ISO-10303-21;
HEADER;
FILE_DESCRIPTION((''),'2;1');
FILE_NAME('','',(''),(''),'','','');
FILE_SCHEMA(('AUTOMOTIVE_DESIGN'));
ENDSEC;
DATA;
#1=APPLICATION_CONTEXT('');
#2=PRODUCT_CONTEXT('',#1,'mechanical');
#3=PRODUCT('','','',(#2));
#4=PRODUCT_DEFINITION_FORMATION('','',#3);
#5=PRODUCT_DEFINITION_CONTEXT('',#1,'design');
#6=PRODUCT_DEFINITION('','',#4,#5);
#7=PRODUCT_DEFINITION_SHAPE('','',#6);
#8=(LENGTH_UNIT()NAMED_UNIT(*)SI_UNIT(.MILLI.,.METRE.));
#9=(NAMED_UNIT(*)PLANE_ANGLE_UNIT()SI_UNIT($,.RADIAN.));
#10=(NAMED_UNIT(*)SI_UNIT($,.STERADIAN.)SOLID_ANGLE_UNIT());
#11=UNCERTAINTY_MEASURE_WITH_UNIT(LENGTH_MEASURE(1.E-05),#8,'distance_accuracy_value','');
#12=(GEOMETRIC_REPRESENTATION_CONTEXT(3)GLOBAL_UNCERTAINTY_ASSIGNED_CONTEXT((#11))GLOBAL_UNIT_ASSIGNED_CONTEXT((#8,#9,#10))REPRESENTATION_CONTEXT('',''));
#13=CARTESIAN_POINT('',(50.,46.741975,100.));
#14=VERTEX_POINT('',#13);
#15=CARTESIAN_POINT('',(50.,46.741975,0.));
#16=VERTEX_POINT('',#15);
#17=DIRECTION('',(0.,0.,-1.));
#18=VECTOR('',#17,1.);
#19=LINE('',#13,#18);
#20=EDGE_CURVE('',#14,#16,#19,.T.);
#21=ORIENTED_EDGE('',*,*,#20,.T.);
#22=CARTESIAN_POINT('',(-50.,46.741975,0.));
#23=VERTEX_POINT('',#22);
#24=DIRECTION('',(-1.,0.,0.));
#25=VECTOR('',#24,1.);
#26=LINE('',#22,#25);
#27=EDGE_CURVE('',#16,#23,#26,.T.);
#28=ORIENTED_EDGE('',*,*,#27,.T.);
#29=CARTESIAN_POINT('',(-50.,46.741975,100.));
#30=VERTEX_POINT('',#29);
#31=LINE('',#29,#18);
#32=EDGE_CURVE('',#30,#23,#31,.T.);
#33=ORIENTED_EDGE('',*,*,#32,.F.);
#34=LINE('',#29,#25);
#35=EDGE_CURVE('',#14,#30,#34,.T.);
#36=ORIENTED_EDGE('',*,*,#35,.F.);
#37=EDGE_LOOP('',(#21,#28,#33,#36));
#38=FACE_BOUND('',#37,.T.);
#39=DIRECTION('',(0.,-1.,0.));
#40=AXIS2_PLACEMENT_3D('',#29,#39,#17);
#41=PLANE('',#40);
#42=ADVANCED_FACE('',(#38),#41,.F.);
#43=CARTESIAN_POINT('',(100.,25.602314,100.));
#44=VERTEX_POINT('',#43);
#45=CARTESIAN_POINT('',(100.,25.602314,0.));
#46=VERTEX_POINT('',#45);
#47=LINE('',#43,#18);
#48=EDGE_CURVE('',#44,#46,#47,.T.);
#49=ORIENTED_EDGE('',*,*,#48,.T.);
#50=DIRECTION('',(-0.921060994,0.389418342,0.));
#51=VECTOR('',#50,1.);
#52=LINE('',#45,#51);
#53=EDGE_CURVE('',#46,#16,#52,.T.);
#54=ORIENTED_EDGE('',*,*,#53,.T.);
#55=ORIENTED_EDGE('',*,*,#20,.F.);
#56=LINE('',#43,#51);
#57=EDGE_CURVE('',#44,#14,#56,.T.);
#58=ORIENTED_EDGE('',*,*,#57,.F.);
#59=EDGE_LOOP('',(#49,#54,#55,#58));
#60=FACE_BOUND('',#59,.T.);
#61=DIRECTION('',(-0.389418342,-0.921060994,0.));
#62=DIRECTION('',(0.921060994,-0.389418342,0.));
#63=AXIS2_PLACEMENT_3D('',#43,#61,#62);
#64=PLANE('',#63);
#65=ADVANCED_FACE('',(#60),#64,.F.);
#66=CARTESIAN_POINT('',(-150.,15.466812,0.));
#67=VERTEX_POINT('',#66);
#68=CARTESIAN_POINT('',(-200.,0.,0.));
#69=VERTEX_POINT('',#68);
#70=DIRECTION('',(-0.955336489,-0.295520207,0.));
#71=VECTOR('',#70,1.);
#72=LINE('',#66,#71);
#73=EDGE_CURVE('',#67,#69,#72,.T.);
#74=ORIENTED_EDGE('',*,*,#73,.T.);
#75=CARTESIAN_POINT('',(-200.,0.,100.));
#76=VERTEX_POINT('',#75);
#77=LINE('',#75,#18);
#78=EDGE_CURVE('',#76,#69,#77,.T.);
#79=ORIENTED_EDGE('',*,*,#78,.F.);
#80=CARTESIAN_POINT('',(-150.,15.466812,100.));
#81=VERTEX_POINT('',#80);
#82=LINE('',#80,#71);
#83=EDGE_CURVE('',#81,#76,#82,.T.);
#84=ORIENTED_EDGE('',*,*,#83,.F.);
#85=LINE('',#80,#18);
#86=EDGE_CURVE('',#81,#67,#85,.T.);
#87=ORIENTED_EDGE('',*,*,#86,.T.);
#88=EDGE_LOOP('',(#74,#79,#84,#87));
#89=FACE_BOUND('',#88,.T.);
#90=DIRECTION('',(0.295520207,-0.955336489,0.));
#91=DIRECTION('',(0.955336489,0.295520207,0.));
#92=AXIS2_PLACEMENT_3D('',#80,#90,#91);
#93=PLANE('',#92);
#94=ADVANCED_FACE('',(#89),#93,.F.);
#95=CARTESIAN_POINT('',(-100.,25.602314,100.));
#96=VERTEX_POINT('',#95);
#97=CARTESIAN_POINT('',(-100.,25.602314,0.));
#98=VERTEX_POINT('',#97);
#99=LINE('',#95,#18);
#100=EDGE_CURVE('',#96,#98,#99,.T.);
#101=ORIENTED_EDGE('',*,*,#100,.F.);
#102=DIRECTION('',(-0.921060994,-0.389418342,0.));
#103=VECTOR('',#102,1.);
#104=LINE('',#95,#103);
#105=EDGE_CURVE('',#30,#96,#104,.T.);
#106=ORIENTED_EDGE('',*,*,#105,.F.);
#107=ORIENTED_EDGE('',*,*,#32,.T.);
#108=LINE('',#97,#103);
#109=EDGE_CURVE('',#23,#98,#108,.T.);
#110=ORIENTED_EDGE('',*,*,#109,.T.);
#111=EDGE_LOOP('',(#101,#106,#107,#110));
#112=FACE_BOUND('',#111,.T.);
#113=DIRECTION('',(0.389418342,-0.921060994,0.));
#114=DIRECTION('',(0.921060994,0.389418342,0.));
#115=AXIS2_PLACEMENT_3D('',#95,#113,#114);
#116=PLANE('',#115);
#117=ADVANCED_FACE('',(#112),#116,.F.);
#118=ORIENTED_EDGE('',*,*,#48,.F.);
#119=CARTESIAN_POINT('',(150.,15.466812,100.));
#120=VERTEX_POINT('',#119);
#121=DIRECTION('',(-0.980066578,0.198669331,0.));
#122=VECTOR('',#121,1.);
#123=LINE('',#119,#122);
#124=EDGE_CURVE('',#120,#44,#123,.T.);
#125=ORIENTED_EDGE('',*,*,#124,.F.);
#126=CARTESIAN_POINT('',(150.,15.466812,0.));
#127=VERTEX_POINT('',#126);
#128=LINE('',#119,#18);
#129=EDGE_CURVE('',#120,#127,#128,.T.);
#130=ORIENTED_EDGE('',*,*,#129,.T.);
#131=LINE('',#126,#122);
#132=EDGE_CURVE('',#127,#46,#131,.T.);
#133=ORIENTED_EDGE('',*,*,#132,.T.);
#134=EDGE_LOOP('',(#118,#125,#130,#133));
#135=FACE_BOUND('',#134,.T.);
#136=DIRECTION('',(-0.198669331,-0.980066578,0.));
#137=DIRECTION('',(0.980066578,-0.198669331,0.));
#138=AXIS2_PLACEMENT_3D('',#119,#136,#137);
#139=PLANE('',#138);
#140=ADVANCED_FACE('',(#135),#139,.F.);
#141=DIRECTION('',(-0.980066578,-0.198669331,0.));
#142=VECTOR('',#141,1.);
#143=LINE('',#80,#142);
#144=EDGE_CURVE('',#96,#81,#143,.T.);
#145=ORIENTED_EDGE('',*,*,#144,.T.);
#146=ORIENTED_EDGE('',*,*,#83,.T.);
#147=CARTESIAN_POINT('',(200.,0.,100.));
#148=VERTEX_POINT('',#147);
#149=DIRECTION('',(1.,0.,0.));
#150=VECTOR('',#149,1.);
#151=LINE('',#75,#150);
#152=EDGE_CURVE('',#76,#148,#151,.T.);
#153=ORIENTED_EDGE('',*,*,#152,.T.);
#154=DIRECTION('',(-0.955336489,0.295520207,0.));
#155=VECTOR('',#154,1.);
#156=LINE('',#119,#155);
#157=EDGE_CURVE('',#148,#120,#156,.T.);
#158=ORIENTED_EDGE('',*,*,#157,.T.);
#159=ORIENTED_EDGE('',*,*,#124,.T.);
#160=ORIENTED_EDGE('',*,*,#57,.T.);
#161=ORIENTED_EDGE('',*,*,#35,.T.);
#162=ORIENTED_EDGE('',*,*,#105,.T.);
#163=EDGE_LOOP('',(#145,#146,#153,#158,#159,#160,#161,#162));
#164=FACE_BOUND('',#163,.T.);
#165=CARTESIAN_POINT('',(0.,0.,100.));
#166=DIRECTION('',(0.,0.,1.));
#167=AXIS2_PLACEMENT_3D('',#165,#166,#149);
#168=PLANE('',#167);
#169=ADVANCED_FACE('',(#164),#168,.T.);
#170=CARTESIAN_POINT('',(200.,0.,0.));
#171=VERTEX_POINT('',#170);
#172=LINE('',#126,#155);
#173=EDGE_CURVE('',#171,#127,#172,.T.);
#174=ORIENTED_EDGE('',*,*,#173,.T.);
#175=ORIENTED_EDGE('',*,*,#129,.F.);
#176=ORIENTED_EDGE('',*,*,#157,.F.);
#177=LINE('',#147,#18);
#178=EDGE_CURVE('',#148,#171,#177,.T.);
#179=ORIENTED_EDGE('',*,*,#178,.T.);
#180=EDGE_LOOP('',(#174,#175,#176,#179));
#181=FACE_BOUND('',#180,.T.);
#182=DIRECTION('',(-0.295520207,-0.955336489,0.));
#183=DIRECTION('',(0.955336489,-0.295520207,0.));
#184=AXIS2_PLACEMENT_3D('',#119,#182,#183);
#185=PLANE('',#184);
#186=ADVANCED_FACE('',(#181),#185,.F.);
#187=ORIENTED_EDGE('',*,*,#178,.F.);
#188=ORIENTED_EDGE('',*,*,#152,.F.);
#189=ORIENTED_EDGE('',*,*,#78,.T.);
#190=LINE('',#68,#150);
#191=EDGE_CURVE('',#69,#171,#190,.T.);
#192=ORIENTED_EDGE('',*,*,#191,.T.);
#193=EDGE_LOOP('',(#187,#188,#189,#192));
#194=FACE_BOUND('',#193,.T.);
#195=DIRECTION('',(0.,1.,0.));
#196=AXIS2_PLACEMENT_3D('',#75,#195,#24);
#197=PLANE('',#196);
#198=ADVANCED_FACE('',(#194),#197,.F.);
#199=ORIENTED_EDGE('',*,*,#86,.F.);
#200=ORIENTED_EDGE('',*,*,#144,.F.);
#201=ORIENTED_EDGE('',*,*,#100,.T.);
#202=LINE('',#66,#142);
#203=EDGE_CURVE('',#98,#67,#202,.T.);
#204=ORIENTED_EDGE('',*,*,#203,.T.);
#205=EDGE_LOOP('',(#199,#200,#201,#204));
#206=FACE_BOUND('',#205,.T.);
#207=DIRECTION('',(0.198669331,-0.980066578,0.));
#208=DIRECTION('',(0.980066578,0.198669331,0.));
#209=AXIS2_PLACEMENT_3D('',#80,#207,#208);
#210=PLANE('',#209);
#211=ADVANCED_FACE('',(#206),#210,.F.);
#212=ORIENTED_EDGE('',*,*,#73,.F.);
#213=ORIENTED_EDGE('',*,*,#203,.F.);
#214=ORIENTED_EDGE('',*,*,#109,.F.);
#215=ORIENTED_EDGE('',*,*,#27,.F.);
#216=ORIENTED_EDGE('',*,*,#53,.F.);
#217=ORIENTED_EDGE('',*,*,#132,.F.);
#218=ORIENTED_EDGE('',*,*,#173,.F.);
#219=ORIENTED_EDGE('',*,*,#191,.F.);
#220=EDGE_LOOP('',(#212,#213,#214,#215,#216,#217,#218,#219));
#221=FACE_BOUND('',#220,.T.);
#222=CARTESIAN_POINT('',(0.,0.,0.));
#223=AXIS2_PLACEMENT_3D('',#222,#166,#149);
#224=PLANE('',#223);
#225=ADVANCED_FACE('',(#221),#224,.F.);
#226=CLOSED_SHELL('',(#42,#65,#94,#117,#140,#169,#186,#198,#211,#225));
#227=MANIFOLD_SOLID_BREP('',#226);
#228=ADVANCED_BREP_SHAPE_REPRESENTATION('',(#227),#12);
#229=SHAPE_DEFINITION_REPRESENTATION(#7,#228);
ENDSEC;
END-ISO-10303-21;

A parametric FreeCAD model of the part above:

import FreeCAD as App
import Part
import Sketcher

V = App.Vector


def add_polygon(sketch, points):
    """Adds a closed chain of lines whose ends are joined by coincident constraints."""
    first, n = sketch.GeometryCount, len(points)
    for a, b in zip(points, points[1:] + points[:1]):
        sketch.addGeometry(Part.LineSegment(App.Vector(*a, 0), App.Vector(*b, 0)), False)
    for i in range(n):
        sketch.addConstraint(Sketcher.Constraint("Coincident", first + i, 2, first + (i + 1) % n, 1))

doc = App.newDocument("Part")
body = doc.addObject("PartDesign::Body", "Body")

# Sketch on XY plane
sketch1 = body.newObject("Sketcher::SketchObject", "Sketch")
sketch1.AttachmentSupport = (doc.getObject("XY_Plane"), [""])
sketch1.MapMode = "FlatFace"
add_polygon(sketch1, [(-100, 25.602314), (-150, 15.466812), (-200, 0), (200, 0), (150, 15.466812), (100, 25.602314), (50, 46.741975), (-50, 46.741975)])  # lines 0-7
sketch1.addConstraint(Sketcher.Constraint("Horizontal", 2))
sketch1.addConstraint(Sketcher.Constraint("Horizontal", 6))
sketch1.addConstraint(Sketcher.Constraint("Symmetric", 1, 2, 2, 2, -1, 1))
sketch1.addConstraint(Sketcher.Constraint("Symmetric", 0, 2, 3, 2, -2))
sketch1.addConstraint(Sketcher.Constraint("Symmetric", 4, 2, 7, 2, -2))
sketch1.addConstraint(Sketcher.Constraint("Equal", 5, 7))
sketch1.addConstraint(Sketcher.Constraint("DistanceX", 2, 1, 2, 2, 400.0))
sketch1.addConstraint(Sketcher.Constraint("DistanceX", 6, 2, 6, 1, 100.0))
sketch1.addConstraint(Sketcher.Constraint("DistanceX", 0, 2, -1, 1, 150.0))
sketch1.addConstraint(Sketcher.Constraint("DistanceX", -1, 1, 4, 2, 100.0))
sketch1.addConstraint(Sketcher.Constraint("DistanceY", 3, 2, 4, 2, 10.135502))
sketch1.addConstraint(Sketcher.Constraint("Distance", 1, 52.33758))
sketch1.addConstraint(Sketcher.Constraint("Distance", 5, 54.285221))
pad1 = body.newObject("PartDesign::Pad", "Pad")
pad1.Profile = sketch1
pad1.Length = 100

doc.recompute()
